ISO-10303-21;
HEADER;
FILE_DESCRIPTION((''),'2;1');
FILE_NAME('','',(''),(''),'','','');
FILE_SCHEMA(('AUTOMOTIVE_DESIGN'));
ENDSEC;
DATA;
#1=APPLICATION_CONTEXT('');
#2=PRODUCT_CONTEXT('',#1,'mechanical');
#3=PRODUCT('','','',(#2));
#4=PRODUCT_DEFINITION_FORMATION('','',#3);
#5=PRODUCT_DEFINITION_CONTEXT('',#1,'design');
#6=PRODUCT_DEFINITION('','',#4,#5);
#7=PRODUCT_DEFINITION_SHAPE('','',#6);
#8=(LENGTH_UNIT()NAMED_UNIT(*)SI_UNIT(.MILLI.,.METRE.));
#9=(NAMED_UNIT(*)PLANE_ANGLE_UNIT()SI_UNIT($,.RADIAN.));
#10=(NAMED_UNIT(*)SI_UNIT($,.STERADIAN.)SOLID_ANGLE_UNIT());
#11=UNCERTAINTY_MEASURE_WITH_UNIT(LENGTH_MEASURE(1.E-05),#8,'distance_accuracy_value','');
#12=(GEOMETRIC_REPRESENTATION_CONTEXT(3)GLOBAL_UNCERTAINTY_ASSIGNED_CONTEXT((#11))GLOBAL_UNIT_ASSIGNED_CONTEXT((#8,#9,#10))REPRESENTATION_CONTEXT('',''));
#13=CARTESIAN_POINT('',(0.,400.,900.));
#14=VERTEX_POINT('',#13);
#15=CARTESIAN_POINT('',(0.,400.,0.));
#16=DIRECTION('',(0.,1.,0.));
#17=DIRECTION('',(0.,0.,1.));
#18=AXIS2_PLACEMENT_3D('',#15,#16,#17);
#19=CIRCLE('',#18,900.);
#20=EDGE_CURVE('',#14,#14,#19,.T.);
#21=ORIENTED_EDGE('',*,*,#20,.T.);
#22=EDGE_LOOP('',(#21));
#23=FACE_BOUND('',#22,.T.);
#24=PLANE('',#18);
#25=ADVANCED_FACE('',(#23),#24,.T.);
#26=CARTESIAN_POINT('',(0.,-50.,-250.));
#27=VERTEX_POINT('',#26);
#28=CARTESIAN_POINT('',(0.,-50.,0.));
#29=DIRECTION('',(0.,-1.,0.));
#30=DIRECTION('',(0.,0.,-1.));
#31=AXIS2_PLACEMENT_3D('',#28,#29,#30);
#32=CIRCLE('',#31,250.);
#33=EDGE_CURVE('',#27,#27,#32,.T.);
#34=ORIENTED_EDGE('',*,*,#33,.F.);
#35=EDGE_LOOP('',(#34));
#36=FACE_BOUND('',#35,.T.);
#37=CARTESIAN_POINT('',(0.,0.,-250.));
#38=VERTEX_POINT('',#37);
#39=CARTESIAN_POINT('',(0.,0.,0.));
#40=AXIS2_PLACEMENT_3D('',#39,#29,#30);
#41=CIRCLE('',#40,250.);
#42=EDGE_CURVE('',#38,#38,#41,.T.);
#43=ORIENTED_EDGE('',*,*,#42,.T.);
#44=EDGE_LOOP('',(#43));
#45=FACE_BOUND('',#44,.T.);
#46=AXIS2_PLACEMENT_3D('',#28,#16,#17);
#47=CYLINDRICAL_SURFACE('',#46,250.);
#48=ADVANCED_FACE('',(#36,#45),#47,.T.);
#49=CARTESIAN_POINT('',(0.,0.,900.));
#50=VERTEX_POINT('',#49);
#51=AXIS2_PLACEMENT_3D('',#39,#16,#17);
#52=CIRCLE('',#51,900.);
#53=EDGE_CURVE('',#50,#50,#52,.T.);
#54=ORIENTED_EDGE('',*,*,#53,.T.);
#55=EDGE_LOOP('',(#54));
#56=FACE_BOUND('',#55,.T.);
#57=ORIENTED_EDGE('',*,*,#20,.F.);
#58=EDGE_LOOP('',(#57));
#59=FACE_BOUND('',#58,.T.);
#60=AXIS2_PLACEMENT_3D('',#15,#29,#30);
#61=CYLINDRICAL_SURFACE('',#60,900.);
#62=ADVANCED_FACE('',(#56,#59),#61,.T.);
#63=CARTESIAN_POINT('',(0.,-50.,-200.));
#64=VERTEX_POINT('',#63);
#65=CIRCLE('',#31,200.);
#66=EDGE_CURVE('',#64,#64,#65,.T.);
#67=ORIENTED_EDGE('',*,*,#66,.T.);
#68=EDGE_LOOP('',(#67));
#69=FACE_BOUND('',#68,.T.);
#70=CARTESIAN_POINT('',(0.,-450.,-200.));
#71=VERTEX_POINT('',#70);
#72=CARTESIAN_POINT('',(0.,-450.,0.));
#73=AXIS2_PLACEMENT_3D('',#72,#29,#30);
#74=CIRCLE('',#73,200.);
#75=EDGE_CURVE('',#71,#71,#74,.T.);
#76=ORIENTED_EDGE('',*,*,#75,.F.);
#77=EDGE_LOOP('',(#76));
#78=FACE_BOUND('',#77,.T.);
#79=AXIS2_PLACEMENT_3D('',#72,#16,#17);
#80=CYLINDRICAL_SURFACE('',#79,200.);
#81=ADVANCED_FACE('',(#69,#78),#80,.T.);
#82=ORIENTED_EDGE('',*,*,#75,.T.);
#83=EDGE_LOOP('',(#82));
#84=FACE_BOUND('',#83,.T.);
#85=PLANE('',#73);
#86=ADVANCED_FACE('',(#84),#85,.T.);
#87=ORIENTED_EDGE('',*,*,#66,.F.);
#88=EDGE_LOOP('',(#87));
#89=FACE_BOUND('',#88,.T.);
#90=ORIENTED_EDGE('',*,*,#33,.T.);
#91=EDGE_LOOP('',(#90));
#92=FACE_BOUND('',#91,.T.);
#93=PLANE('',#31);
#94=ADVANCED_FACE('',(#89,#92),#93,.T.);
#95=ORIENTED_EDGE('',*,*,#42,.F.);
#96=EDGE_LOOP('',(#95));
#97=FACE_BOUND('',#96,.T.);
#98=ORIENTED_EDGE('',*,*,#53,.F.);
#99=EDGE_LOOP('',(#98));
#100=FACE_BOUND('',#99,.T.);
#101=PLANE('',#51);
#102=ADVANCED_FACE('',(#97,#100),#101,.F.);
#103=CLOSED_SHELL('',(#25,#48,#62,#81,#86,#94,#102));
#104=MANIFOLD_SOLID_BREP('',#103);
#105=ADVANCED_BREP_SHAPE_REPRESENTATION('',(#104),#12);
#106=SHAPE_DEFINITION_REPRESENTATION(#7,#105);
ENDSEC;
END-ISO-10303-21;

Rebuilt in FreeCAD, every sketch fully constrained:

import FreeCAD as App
import Part
import Sketcher
from FreeCAD import Vector
Q = App.Units.Quantity

doc = App.newDocument("Part")
body = doc.addObject("PartDesign::Body", "Body")

sketch1 = body.newObject("Sketcher::SketchObject", "Sketch")
sketch1.AttachmentSupport = (doc.getObject("XZ_Plane"), [""])
sketch1.MapMode = "FlatFace"
sketch1.addGeometry(Part.Circle(Vector(0, 0, 0), Vector(0, 0, 1), 900), False)
sketch1.addConstraint(Sketcher.Constraint("Coincident", 0, 3, -1, 1))
sketch1.addConstraint(Sketcher.Constraint("Diameter", 0, Q("1800 mm")))
pad1 = body.newObject("PartDesign::Pad", "Pad")
pad1.Profile = sketch1
pad1.Length = 400
pad1.Reversed = True

sketch2 = body.newObject("Sketcher::SketchObject", "Sketch001")
sketch2.AttachmentSupport = (doc.getObject("XZ_Plane"), [""])
sketch2.MapMode = "FlatFace"
sketch2.addGeometry(Part.Circle(Vector(0, 0, 0), Vector(0, 0, 1), 250), False)
sketch2.addConstraint(Sketcher.Constraint("Coincident", 0, 3, -1, 1))
sketch2.addConstraint(Sketcher.Constraint("Diameter", 0, Q("500 mm")))
pad2 = body.newObject("PartDesign::Pad", "Pad001")
pad2.Profile = sketch2
pad2.Length = 50

sketch3 = body.newObject("Sketcher::SketchObject", "Sketch002")
sketch3.AttachmentSupport = (doc.getObject("XZ_Plane"), [""])
sketch3.MapMode = "FlatFace"
sketch3.AttachmentOffset = App.Placement(Vector(0, 0, 50), App.Rotation())
sketch3.addGeometry(Part.Circle(Vector(0, 0, 0), Vector(0, 0, 1), 200), False)
sketch3.addConstraint(Sketcher.Constraint("Coincident", 0, 3, -1, 1))
sketch3.addConstraint(Sketcher.Constraint("Diameter", 0, Q("400 mm")))
pad3 = body.newObject("PartDesign::Pad", "Pad002")
pad3.Profile = sketch3
pad3.Length = 400

doc.recompute()
